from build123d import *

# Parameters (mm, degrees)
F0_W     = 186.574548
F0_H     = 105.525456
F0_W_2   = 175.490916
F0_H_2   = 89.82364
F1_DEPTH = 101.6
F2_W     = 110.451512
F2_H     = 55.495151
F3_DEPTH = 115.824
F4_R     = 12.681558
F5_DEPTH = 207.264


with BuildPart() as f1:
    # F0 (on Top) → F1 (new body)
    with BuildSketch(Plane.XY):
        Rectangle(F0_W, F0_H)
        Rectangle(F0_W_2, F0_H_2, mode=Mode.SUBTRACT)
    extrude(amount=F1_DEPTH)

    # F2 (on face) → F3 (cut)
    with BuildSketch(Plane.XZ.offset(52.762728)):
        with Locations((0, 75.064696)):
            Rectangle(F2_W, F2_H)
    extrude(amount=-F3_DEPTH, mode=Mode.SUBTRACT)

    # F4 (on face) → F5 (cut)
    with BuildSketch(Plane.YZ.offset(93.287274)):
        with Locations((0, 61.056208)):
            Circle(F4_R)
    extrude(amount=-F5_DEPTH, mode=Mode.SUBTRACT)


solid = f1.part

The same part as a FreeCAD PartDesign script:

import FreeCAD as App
import Part
import Sketcher
from FreeCAD import Vector
Q = App.Units.Quantity


def add_polygon(sketch, points):
    """Adds a closed chain of lines whose ends are joined by coincident constraints."""
    first, n = sketch.GeometryCount, len(points)
    for a, b in zip(points, points[1:] + points[:1]):
        sketch.addGeometry(Part.LineSegment(App.Vector(*a, 0), App.Vector(*b, 0)), False)
    for i in range(n):
        sketch.addConstraint(Sketcher.Constraint("Coincident", first + i, 2, first + (i + 1) % n, 1))

doc = App.newDocument("Part")
params = doc.addObject("Spreadsheet::Sheet", "Params")
for row, (alias, value) in enumerate([
    ("pad1_length", "4 in"),
    ("pocket1_length", "4.56 in"),
    ("pocket2_length", "8.16 in"),
], start=1):
    params.set(f"A{row}", alias)
    params.set(f"B{row}", "=" + value)
    params.setAlias(f"B{row}", alias)

body = doc.addObject("PartDesign::Body", "Body")

sketch1 = doc.addObject("Sketcher::SketchObject", "Sketch")
body.addObject(sketch1)
sketch1.AttachmentSupport = (doc.XY_Plane, [""])
sketch1.MapMode = "FlatFace"
add_polygon(sketch1, [(-93, 53), (-93, -53), (93, -53), (93, 53)])
add_polygon(sketch1, [(88, -45), (-88, -45), (-88, 45), (88, 45)])
sketch1.addConstraint([
    Sketcher.Constraint("Vertical", 0),
    Sketcher.Constraint("Horizontal", 1),
    Sketcher.Constraint("Vertical", 2),
    Sketcher.Constraint("Horizontal", 3),
    Sketcher.Constraint("Horizontal", 4),
    Sketcher.Constraint("Vertical", 5),
    Sketcher.Constraint("Horizontal", 6),
    Sketcher.Constraint("Vertical", 7),
    Sketcher.Constraint("Symmetric", 0, 2, 2, 2, -1, 1),
    Sketcher.Constraint("Symmetric", 4, 2, 6, 2, -1, 1),
    Sketcher.Constraint("DistanceX", 1, 1, 1, 2, Q("186.574548 mm")),
    Sketcher.Constraint("DistanceY", 5, 1, 5, 2, Q("89.82364 mm")),
    Sketcher.Constraint("DistanceX", 4, 2, 4, 1, Q("175.490916 mm")),
    Sketcher.Constraint("DistanceY", 0, 2, 0, 1, Q("105.525456 mm")),
])
pad1 = doc.addObject("PartDesign::Pad", "Pad")
body.addObject(pad1)
pad1.Profile = sketch1
pad1.setExpression("Length", "Params.pad1_length")

sketch2 = doc.addObject("Sketcher::SketchObject", "Sketch001")
body.addObject(sketch2)
sketch2.AttachmentSupport = (doc.XZ_Plane, [""])
sketch2.MapMode = "FlatFace"
sketch2.AttachmentOffset = App.Placement(Vector(0, 0, 52.762728), App.Rotation())
add_polygon(sketch2, [(-55, 103), (-55, 47), (55, 47), (55, 103)])
sketch2.addConstraint([
    Sketcher.Constraint("Vertical", 0),
    Sketcher.Constraint("Horizontal", 1),
    Sketcher.Constraint("Vertical", 2),
    Sketcher.Constraint("Horizontal", 3),
    Sketcher.Constraint("DistanceX", 1, 1, 1, 2, Q("110.451512 mm")),
    Sketcher.Constraint("DistanceY", 0, 2, 0, 1, Q("55.495151 mm")),
    Sketcher.Constraint("DistanceY", -1, 1, 0, 2, Q("47.317121 mm")),
    Sketcher.Constraint("DistanceX", 0, 2, -1, 1, Q("55.225756 mm")),
])
pocket1 = doc.addObject("PartDesign::Pocket", "Pocket")
body.addObject(pocket1)
pocket1.Profile = sketch2
pocket1.setExpression("Length", "Params.pocket1_length")

sketch3 = doc.addObject("Sketcher::SketchObject", "Sketch002")
body.addObject(sketch3)
sketch3.AttachmentSupport = (doc.YZ_Plane, [""])
sketch3.MapMode = "FlatFace"
sketch3.AttachmentOffset = App.Placement(Vector(0, 0, 93.287274), App.Rotation())
sketch3.addGeometry(Part.Circle(Vector(0, 61, 0), Vector(0, 0, 1), 13), False)
sketch3.addConstraint([
    Sketcher.Constraint("PointOnObject", 0, 3, -2),
    Sketcher.Constraint("Diameter", 0, Q("25.363116 mm")),
    Sketcher.Constraint("DistanceY", -1, 1, 0, 3, Q("61.056208 mm")),
])
pocket2 = doc.addObject("PartDesign::Pocket", "Pocket001")
body.addObject(pocket2)
pocket2.Profile = sketch3
pocket2.setExpression("Length", "Params.pocket2_length")

doc.recompute()
